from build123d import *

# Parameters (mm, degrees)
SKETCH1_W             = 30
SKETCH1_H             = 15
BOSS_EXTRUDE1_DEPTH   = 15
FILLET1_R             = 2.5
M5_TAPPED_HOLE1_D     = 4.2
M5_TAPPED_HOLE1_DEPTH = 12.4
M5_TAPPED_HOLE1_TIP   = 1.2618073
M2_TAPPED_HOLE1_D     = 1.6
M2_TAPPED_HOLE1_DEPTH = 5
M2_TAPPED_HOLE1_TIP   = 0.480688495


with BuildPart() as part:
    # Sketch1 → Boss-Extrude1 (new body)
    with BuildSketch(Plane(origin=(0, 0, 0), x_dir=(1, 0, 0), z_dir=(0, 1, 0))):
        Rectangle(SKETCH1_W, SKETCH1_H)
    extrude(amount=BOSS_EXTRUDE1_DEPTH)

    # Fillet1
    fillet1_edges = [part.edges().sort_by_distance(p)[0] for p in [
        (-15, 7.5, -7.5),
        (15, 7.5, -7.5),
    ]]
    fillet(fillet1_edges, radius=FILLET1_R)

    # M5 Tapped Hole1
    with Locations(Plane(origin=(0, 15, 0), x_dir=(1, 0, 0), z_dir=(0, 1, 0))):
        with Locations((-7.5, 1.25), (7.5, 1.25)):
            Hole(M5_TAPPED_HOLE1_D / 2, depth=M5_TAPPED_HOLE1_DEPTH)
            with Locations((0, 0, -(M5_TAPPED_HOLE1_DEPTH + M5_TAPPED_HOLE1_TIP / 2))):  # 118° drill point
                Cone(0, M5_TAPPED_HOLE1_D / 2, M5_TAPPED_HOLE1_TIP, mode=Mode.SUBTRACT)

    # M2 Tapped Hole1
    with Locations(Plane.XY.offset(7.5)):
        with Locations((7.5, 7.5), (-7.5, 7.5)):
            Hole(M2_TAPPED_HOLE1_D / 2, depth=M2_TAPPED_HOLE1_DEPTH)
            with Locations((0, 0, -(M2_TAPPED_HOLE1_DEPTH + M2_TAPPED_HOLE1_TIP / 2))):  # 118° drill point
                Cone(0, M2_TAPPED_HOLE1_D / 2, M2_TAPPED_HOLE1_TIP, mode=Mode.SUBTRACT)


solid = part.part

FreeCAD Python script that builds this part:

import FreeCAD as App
import Part
import Sketcher
Q = App.Units.Quantity


def edges_at(feature, points):
    """Names of the edges that pass closest to the given points."""
    edges = feature.Shape.Edges
    near = lambda p: min(range(len(edges)), key=lambda i: edges[i].distToShape(Part.Vertex(*p))[0])
    return sorted({f"Edge{near(p) + 1}" for p in points})


def add_polygon(sketch, points):
    """Adds a closed chain of lines whose ends are joined by coincident constraints."""
    first, n = sketch.GeometryCount, len(points)
    for a, b in zip(points, points[1:] + points[:1]):
        sketch.addGeometry(Part.LineSegment(App.Vector(*a, 0), App.Vector(*b, 0)), False)
    for i in range(n):
        sketch.addConstraint(Sketcher.Constraint("Coincident", first + i, 2, first + (i + 1) % n, 1))

doc = App.newDocument("Part")
body = doc.addObject("PartDesign::Body", "Body")

sketch1 = body.newObject("Sketcher::SketchObject", "Sketch")
sketch1.AttachmentSupport = (doc.getObject("XZ_Plane"), [""])
sketch1.MapMode = "FlatFace"
add_polygon(sketch1, [(-15, -8), (-15, 8), (15, 8), (15, -8)])
sketch1.addConstraint([
    Sketcher.Constraint("Vertical", 0),
    Sketcher.Constraint("Horizontal", 1),
    Sketcher.Constraint("Vertical", 2),
    Sketcher.Constraint("Horizontal", 3),
    Sketcher.Constraint("Symmetric", 0, 2, 2, 2, -1, 1),
    Sketcher.Constraint("DistanceX", 1, 1, 1, 2, Q("30 mm")),
    Sketcher.Constraint("DistanceY", 0, 1, 0, 2, Q("15 mm")),
])
pad1 = body.newObject("PartDesign::Pad", "Pad")
pad1.Profile = sketch1
pad1.Length = 15
pad1.Reversed = True
doc.recompute()

fillet = body.newObject("PartDesign::Fillet", "Fillet")
fillet.Base = (pad1, edges_at(pad1, [(-15, 7.5, -7.5), (15, 7.5, -7.5)]))
fillet.Radius = 2.5

sketch2 = body.newObject("Sketcher::SketchObject", "Sketch001")
sketch2.AttachmentSupport = (doc.getObject("XZ_Plane"), [""])
sketch2.MapMode = "FlatFace"
sketch2.AttachmentOffset = App.Placement(App.Vector(0, 0, -15), App.Rotation())
sketch2.addGeometry([
    Part.Circle(App.Vector(-7.5, -1.2, 0), App.Vector(0, 0, 1), 2.1),
    Part.Circle(App.Vector(7.5, -1.2, 0), App.Vector(0, 0, 1), 2.1),
], False)
sketch2.addConstraint([
    Sketcher.Constraint("Equal", 0, 1),
    Sketcher.Constraint("Symmetric", 0, 3, 1, 3, -2),
    Sketcher.Constraint("Diameter", 0, Q("4.2 mm")),
    Sketcher.Constraint("DistanceX", 0, 3, 1, 3, Q("15 mm")),
    Sketcher.Constraint("DistanceY", 0, 3, -1, 1, Q("1.25 mm")),
])
doc.recompute()
hole = body.newObject("PartDesign::Hole", "Hole")
hole.Profile = sketch2
hole.ThreadType = "None"
hole.Diameter = 4.2
hole.DepthType = "Dimension"
hole.Depth = 12.4
hole.DrillPoint = "Angled"
hole.DrillPointAngle = 118
hole.Reversed = True

sketch3 = body.newObject("Sketcher::SketchObject", "Sketch002")
sketch3.AttachmentSupport = (doc.getObject("XY_Plane"), [""])
sketch3.MapMode = "FlatFace"
sketch3.AttachmentOffset = App.Placement(App.Vector(0, 0, 7.5), App.Rotation())
sketch3.addGeometry([
    Part.Circle(App.Vector(7.5, 7.5, 0), App.Vector(0, 0, 1), 0.8),
    Part.Circle(App.Vector(-7.5, 7.5, 0), App.Vector(0, 0, 1), 0.8),
], False)
sketch3.addConstraint([
    Sketcher.Constraint("Equal", 0, 1),
    Sketcher.Constraint("Symmetric", 0, 3, 1, 3, -2),
    Sketcher.Constraint("Diameter", 0, Q("1.6 mm")),
    Sketcher.Constraint("DistanceX", 1, 3, 0, 3, Q("15 mm")),
    Sketcher.Constraint("DistanceY", -1, 1, 0, 3, Q("7.5 mm")),
])
doc.recompute()
hole2 = body.newObject("PartDesign::Hole", "Hole001")
hole2.Profile = sketch3
hole2.ThreadType = "None"
hole2.Diameter = 1.6
hole2.DepthType = "Dimension"
hole2.Depth = 5
hole2.DrillPoint = "Angled"
hole2.DrillPointAngle = 118

doc.recompute()
